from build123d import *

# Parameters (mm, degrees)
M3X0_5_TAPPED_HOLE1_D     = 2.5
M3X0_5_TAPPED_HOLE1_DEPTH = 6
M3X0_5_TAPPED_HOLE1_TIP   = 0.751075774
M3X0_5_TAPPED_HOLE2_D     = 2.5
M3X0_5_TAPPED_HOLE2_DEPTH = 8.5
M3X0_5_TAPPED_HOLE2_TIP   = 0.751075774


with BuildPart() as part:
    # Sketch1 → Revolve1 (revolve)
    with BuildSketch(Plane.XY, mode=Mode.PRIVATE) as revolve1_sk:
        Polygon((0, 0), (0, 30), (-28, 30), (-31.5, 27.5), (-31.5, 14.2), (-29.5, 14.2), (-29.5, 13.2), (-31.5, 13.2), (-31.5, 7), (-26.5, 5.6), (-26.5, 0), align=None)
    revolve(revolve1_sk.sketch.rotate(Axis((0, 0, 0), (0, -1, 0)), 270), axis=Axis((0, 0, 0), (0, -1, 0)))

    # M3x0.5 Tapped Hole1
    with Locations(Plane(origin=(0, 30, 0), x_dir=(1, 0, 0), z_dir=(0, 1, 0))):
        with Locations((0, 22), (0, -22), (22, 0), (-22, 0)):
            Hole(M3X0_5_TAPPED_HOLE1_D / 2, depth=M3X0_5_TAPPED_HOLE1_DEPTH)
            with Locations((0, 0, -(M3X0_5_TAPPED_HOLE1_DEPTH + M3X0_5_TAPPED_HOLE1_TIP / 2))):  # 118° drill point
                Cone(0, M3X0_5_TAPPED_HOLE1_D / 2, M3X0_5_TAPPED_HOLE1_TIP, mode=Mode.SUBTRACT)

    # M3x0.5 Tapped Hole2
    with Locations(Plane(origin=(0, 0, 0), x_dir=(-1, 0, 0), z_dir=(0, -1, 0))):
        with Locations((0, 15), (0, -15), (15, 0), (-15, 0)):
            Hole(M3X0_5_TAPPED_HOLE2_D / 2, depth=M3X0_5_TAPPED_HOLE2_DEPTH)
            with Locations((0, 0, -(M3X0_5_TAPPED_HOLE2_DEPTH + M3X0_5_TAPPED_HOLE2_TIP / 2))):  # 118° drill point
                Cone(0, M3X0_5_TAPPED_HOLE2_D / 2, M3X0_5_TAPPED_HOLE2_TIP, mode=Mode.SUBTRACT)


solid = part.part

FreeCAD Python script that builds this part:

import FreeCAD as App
import Part
import Sketcher
from FreeCAD import Vector
Q = App.Units.Quantity

doc = App.newDocument("Part")
body = doc.addObject("PartDesign::Body", "Body")

# Sketch on XY plane
sketch1 = body.newObject("Sketcher::SketchObject", "Sketch")
sketch1.AttachmentSupport = (doc.getObject("XY_Plane"), [""])
sketch1.MapMode = "FlatFace"
sketch1.addGeometry([
    Part.LineSegment(Vector(0, 0, 0), Vector(0, 30, 0)),  # 0
    Part.LineSegment(Vector(0, 30, 0), Vector(-28, 30, 0)),  # 1
    Part.LineSegment(Vector(-28, 30, 0), Vector(-31.5, 27.5, 0)),  # 2
    Part.LineSegment(Vector(-31.5, 27.5, 0), Vector(-31.5, 14.2, 0)),  # 3
    Part.LineSegment(Vector(-31.5, 14.2, 0), Vector(-29.5, 14.2, 0)),  # 4
    Part.LineSegment(Vector(-29.5, 14.2, 0), Vector(-29.5, 13.2, 0)),  # 5
    Part.LineSegment(Vector(-29.5, 13.2, 0), Vector(-31.5, 13.2, 0)),  # 6
    Part.LineSegment(Vector(-31.5, 13.2, 0), Vector(-31.5, 7, 0)),  # 7
    Part.LineSegment(Vector(-31.5, 7, 0), Vector(-26.5, 5.6, 0)),  # 8
    Part.LineSegment(Vector(-26.5, 5.6, 0), Vector(-26.5, 0, 0)),  # 9
    Part.LineSegment(Vector(-26.5, 0, 0), Vector(0, 0, 0)),  # 10
], False)
sketch1.addConstraint([
    Sketcher.Constraint("Coincident", 0, 2, 1, 1),
    Sketcher.Constraint("Coincident", 1, 2, 2, 1),
    Sketcher.Constraint("Coincident", 2, 2, 3, 1),
    Sketcher.Constraint("Coincident", 3, 2, 4, 1),
    Sketcher.Constraint("Coincident", 4, 2, 5, 1),
    Sketcher.Constraint("Coincident", 5, 2, 6, 1),
    Sketcher.Constraint("Coincident", 6, 2, 7, 1),
    Sketcher.Constraint("Coincident", 7, 2, 8, 1),
    Sketcher.Constraint("Coincident", 8, 2, 9, 1),
    Sketcher.Constraint("Coincident", 9, 2, 10, 1),
    Sketcher.Constraint("Coincident", 10, 2, 0, 1),
    Sketcher.Constraint("Vertical", 0),
    Sketcher.Constraint("Horizontal", 1),
    Sketcher.Constraint("Vertical", 3),
    Sketcher.Constraint("Horizontal", 4),
    Sketcher.Constraint("Vertical", 5),
    Sketcher.Constraint("Horizontal", 6),
    Sketcher.Constraint("Vertical", 7),
    Sketcher.Constraint("Vertical", 9),
    Sketcher.Constraint("Horizontal", 10),
    Sketcher.Constraint("Coincident", 10, 2, -1, 1),
    Sketcher.Constraint("Vertical", 3, 2, 6, 2),
    Sketcher.Constraint("DistanceX", 1, 2, 1, 1, Q("28 mm")),
    Sketcher.Constraint("DistanceX", 4, 1, 4, 2, Q("2 mm")),
    Sketcher.Constraint("DistanceY", 0, 1, 0, 2, Q("30 mm")),
    Sketcher.Constraint("DistanceY", 5, 2, 5, 1, Q("1 mm")),
    Sketcher.Constraint("DistanceX", 10, 1, 10, 2, Q("26.5 mm")),
    Sketcher.Constraint("DistanceY", 3, 2, 3, 1, Q("13.3 mm")),
    Sketcher.Constraint("DistanceY", 7, 2, 7, 1, Q("6.2 mm")),
    Sketcher.Constraint("DistanceY", 9, 2, 9, 1, Q("5.6 mm")),
    Sketcher.Constraint("DistanceY", -1, 1, 7, 2, Q("7 mm")),
    Sketcher.Constraint("DistanceX", 7, 2, 8, 2, Q("5 mm")),
])
revolution = body.newObject("PartDesign::Revolution", "Revolution")
revolution.Profile = sketch1
revolution.ReferenceAxis = (sketch1, ["V_Axis"])
revolution.Angle = 360

# Sketch on XZ plane
sketch2 = body.newObject("Sketcher::SketchObject", "Sketch001")
sketch2.AttachmentSupport = (doc.getObject("XZ_Plane"), [""])
sketch2.MapMode = "FlatFace"
sketch2.AttachmentOffset = App.Placement(Vector(0, 0, -30), App.Rotation())
sketch2.addGeometry([
    Part.Circle(Vector(0, -22, 0), Vector(0, 0, 1), 1.2),
    Part.Circle(Vector(0, 22, 0), Vector(0, 0, 1), 1.2),
    Part.Circle(Vector(22, 0, 0), Vector(0, 0, 1), 1.2),
    Part.Circle(Vector(-22, 0, 0), Vector(0, 0, 1), 1.2),
], False)
sketch2.addConstraint([
    Sketcher.Constraint("Equal", 0, 1),
    Sketcher.Constraint("Equal", 1, 2),
    Sketcher.Constraint("Equal", 2, 3),
    Sketcher.Constraint("Symmetric", 0, 3, 1, 3, -1, 1),
    Sketcher.Constraint("Symmetric", 2, 3, 3, 3, -1, 1),
    Sketcher.Constraint("PointOnObject", 0, 3, -2),
    Sketcher.Constraint("PointOnObject", 2, 3, -1),
    Sketcher.Constraint("Diameter", 0, Q("2.5 mm")),
    Sketcher.Constraint("DistanceY", 0, 3, -1, 1, Q("22 mm")),
    Sketcher.Constraint("DistanceX", -1, 1, 2, 3, Q("22 mm")),
])
doc.recompute()
hole = body.newObject("PartDesign::Hole", "Hole")
hole.Profile = sketch2
hole.ThreadType = "None"
hole.Diameter = 2.5
hole.DepthType = "Dimension"
hole.Depth = 6
hole.DrillPoint = "Angled"
hole.DrillPointAngle = 118
hole.Reversed = True

# Sketch on XZ plane
sketch3 = body.newObject("Sketcher::SketchObject", "Sketch002")
sketch3.AttachmentSupport = (doc.getObject("XZ_Plane"), [""])
sketch3.MapMode = "FlatFace"
sketch3.addGeometry([
    Part.Circle(Vector(0, -15, 0), Vector(0, 0, 1), 1.2),
    Part.Circle(Vector(0, 15, 0), Vector(0, 0, 1), 1.2),
    Part.Circle(Vector(-15, 0, 0), Vector(0, 0, 1), 1.2),
    Part.Circle(Vector(15, 0, 0), Vector(0, 0, 1), 1.2),
], False)
sketch3.addConstraint([
    Sketcher.Constraint("Equal", 0, 1),
    Sketcher.Constraint("Equal", 1, 2),
    Sketcher.Constraint("Equal", 2, 3),
    Sketcher.Constraint("Symmetric", 0, 3, 1, 3, -1, 1),
    Sketcher.Constraint("Symmetric", 2, 3, 3, 3, -1, 1),
    Sketcher.Constraint("PointOnObject", 0, 3, -2),
    Sketcher.Constraint("PointOnObject", 2, 3, -1),
    Sketcher.Constraint("Diameter", 0, Q("2.5 mm")),
    Sketcher.Constraint("DistanceY", 0, 3, -1, 1, Q("15 mm")),
    Sketcher.Constraint("DistanceX", 2, 3, -1, 1, Q("15 mm")),
])
doc.recompute()
hole2 = body.newObject("PartDesign::Hole", "Hole001")
hole2.Profile = sketch3
hole2.ThreadType = "None"
hole2.Diameter = 2.5
hole2.DepthType = "Dimension"
hole2.Depth = 8.5
hole2.DrillPoint = "Angled"
hole2.DrillPointAngle = 118

doc.recompute()
